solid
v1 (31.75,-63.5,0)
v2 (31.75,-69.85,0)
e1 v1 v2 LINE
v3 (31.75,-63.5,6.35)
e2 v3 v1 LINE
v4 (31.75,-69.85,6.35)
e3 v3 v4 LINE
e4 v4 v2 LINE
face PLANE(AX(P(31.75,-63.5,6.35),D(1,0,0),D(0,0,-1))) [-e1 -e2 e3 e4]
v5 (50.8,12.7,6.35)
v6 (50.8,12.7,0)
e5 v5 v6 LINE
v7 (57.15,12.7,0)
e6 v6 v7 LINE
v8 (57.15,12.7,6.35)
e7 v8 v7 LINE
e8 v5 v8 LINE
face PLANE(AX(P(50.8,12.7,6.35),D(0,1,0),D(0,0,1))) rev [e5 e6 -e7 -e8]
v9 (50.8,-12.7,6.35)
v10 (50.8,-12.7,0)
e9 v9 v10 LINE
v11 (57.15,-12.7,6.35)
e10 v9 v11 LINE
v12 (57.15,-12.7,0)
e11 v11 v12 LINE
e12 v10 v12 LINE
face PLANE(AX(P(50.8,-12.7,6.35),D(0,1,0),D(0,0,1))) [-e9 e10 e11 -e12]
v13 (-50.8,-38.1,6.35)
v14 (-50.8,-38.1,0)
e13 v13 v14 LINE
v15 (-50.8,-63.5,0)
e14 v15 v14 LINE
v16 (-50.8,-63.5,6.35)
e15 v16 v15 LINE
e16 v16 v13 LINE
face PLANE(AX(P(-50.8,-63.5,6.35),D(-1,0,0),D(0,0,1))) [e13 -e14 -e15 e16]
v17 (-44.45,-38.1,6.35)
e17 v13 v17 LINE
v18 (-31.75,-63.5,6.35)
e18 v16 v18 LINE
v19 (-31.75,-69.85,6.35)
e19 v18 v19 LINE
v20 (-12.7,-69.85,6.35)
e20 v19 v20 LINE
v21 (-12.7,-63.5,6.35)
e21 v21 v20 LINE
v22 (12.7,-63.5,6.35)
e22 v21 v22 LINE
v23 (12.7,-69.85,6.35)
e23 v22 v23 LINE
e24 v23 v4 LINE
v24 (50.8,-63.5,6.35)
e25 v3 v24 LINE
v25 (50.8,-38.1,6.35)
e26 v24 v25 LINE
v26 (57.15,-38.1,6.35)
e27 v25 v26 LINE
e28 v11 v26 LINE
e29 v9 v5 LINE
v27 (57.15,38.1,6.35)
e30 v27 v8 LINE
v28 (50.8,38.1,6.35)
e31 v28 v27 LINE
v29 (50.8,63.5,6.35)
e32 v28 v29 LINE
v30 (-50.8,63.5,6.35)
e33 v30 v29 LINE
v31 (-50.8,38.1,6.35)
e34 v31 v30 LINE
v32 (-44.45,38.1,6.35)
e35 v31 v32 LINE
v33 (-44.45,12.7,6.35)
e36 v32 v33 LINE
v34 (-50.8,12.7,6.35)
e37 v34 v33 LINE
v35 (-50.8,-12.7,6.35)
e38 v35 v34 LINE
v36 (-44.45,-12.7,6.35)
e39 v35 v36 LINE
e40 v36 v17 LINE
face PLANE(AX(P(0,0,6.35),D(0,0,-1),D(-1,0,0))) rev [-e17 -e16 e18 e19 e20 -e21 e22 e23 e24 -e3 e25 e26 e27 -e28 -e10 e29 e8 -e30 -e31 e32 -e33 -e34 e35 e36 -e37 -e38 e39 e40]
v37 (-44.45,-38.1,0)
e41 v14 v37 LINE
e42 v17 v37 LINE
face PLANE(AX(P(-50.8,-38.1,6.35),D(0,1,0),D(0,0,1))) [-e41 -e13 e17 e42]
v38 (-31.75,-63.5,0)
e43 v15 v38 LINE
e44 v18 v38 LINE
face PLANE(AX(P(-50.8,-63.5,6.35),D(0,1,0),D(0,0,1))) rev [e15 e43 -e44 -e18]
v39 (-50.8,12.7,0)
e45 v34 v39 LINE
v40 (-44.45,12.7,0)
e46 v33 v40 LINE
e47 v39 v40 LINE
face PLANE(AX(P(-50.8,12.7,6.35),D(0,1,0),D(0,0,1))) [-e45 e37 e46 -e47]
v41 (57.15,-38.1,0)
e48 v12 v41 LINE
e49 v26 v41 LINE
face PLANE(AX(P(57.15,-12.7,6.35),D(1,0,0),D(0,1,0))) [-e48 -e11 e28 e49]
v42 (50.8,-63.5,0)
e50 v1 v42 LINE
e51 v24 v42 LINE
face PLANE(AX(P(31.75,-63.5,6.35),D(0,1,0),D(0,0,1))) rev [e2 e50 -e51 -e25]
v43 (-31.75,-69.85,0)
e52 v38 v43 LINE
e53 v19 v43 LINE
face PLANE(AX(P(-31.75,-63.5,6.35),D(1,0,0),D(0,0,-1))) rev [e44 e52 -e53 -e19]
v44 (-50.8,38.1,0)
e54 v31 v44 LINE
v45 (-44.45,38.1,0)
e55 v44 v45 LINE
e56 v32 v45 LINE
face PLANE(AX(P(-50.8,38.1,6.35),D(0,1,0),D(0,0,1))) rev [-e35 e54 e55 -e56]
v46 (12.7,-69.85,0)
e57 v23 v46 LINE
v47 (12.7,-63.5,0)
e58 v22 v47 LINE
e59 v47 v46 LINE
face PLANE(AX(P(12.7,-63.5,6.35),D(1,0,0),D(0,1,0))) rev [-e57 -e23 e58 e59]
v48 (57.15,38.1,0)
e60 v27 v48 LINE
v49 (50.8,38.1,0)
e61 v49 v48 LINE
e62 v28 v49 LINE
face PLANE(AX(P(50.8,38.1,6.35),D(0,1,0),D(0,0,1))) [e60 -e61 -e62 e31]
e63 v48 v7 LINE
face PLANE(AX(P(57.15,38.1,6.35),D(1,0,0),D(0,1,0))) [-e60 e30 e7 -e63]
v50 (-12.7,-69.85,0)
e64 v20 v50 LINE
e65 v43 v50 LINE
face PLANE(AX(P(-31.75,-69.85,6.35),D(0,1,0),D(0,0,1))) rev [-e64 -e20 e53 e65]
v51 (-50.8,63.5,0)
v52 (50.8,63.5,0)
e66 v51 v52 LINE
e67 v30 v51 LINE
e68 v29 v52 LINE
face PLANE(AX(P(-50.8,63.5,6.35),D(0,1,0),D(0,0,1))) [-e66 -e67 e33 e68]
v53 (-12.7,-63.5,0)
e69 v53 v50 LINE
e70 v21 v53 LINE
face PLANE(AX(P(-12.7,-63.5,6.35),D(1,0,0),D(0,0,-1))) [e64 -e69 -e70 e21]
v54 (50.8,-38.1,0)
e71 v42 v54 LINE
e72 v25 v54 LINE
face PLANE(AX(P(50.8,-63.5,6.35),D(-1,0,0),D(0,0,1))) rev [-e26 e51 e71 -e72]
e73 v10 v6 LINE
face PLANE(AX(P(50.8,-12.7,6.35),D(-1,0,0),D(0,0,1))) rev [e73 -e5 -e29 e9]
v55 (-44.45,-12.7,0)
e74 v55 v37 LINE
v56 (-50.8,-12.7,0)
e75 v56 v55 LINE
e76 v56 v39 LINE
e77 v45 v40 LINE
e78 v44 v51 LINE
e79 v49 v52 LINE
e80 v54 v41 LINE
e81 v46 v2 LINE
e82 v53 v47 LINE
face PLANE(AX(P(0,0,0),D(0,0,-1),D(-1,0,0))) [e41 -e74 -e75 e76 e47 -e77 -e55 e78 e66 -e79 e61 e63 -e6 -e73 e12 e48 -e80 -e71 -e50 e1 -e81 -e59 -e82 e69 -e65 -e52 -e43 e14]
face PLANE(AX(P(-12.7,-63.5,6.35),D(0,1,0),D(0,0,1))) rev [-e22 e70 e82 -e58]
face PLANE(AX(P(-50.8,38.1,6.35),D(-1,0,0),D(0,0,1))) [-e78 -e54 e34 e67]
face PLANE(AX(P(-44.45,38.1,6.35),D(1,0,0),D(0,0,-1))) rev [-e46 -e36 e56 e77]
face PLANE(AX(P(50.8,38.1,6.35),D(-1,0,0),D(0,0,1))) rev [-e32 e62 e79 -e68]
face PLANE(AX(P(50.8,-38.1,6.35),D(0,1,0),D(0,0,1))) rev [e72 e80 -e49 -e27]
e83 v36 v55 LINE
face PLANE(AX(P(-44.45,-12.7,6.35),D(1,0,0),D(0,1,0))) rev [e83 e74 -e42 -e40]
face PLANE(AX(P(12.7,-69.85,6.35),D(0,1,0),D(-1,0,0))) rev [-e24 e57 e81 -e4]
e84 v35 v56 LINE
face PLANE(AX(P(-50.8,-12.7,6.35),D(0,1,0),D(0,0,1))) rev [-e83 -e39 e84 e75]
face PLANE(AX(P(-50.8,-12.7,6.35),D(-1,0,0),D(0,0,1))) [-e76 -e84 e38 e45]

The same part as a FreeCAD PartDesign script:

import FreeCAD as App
import Part
import Sketcher
from FreeCAD import Vector
Q = App.Units.Quantity

doc = App.newDocument("Part")
body = doc.addObject("PartDesign::Body", "Body")

sketch1 = body.newObject("Sketcher::SketchObject", "Sketch")
sketch1.AttachmentSupport = (doc.getObject("XY_Plane"), [""])
sketch1.MapMode = "FlatFace"
sketch1.addGeometry([
    Part.LineSegment(Vector(-51, 64, 0), Vector(-51, 38, 0)),
    Part.LineSegment(Vector(-51, 38, 0), Vector(-44, 38, 0)),
    Part.LineSegment(Vector(-44, 38, 0), Vector(-44, 13, 0)),
    Part.LineSegment(Vector(-44, 13, 0), Vector(-51, 13, 0)),
    Part.LineSegment(Vector(-51, 13, 0), Vector(-51, -13, 0)),
    Part.LineSegment(Vector(-51, -13, 0), Vector(-44, -13, 0)),
    Part.LineSegment(Vector(-44, -13, 0), Vector(-44, -38, 0)),
    Part.LineSegment(Vector(-44, -38, 0), Vector(-51, -38, 0)),
    Part.LineSegment(Vector(-51, -38, 0), Vector(-51, -64, 0)),
    Part.LineSegment(Vector(-51, -64, 0), Vector(-32, -64, 0)),
    Part.LineSegment(Vector(-32, -64, 0), Vector(-32, -70, 0)),
    Part.LineSegment(Vector(-32, -70, 0), Vector(-13, -70, 0)),
    Part.LineSegment(Vector(-13, -70, 0), Vector(-13, -64, 0)),
    Part.LineSegment(Vector(-13, -64, 0), Vector(13, -64, 0)),
    Part.LineSegment(Vector(13, -64, 0), Vector(13, -70, 0)),
    Part.LineSegment(Vector(13, -70, 0), Vector(32, -70, 0)),
    Part.LineSegment(Vector(32, -70, 0), Vector(32, -64, 0)),
    Part.LineSegment(Vector(32, -64, 0), Vector(51, -64, 0)),
    Part.LineSegment(Vector(51, -64, 0), Vector(51, -38, 0)),
    Part.LineSegment(Vector(51, -38, 0), Vector(57, -38, 0)),
    Part.LineSegment(Vector(57, -38, 0), Vector(57, -13, 0)),
    Part.LineSegment(Vector(57, -13, 0), Vector(51, -13, 0)),
    Part.LineSegment(Vector(51, -13, 0), Vector(51, 13, 0)),
    Part.LineSegment(Vector(51, 13, 0), Vector(57, 13, 0)),
    Part.LineSegment(Vector(57, 13, 0), Vector(57, 38, 0)),
    Part.LineSegment(Vector(57, 38, 0), Vector(51, 38, 0)),
    Part.LineSegment(Vector(51, 38, 0), Vector(51, 64, 0)),
    Part.LineSegment(Vector(51, 64, 0), Vector(-51, 64, 0)),
], False)
sketch1.addConstraint([
    Sketcher.Constraint("Coincident", 0, 2, 1, 1),
    Sketcher.Constraint("Coincident", 1, 2, 2, 1),
    Sketcher.Constraint("Coincident", 2, 2, 3, 1),
    Sketcher.Constraint("Coincident", 3, 2, 4, 1),
    Sketcher.Constraint("Coincident", 4, 2, 5, 1),
    Sketcher.Constraint("Coincident", 5, 2, 6, 1),
    Sketcher.Constraint("Coincident", 6, 2, 7, 1),
    Sketcher.Constraint("Coincident", 7, 2, 8, 1),
    Sketcher.Constraint("Coincident", 8, 2, 9, 1),
    Sketcher.Constraint("Coincident", 9, 2, 10, 1),
    Sketcher.Constraint("Coincident", 10, 2, 11, 1),
    Sketcher.Constraint("Coincident", 11, 2, 12, 1),
    Sketcher.Constraint("Coincident", 12, 2, 13, 1),
    Sketcher.Constraint("Coincident", 13, 2, 14, 1),
    Sketcher.Constraint("Coincident", 14, 2, 15, 1),
    Sketcher.Constraint("Coincident", 15, 2, 16, 1),
    Sketcher.Constraint("Coincident", 16, 2, 17, 1),
    Sketcher.Constraint("Coincident", 17, 2, 18, 1),
    Sketcher.Constraint("Coincident", 18, 2, 19, 1),
    Sketcher.Constraint("Coincident", 19, 2, 20, 1),
    Sketcher.Constraint("Coincident", 20, 2, 21, 1),
    Sketcher.Constraint("Coincident", 21, 2, 22, 1),
    Sketcher.Constraint("Coincident", 22, 2, 23, 1),
    Sketcher.Constraint("Coincident", 23, 2, 24, 1),
    Sketcher.Constraint("Coincident", 24, 2, 25, 1),
    Sketcher.Constraint("Coincident", 25, 2, 26, 1),
    Sketcher.Constraint("Coincident", 26, 2, 27, 1),
    Sketcher.Constraint("Coincident", 27, 2, 0, 1),
    Sketcher.Constraint("Vertical", 0),
    Sketcher.Constraint("Horizontal", 1),
    Sketcher.Constraint("Vertical", 2),
    Sketcher.Constraint("Horizontal", 3),
    Sketcher.Constraint("Vertical", 4),
    Sketcher.Constraint("Horizontal", 5),
    Sketcher.Constraint("Vertical", 6),
    Sketcher.Constraint("Horizontal", 7),
    Sketcher.Constraint("Vertical", 8),
    Sketcher.Constraint("Horizontal", 9),
    Sketcher.Constraint("Vertical", 10),
    Sketcher.Constraint("Horizontal", 11),
    Sketcher.Constraint("Vertical", 12),
    Sketcher.Constraint("Horizontal", 13),
    Sketcher.Constraint("Vertical", 14),
    Sketcher.Constraint("Horizontal", 15),
    Sketcher.Constraint("Vertical", 16),
    Sketcher.Constraint("Horizontal", 17),
    Sketcher.Constraint("Vertical", 18),
    Sketcher.Constraint("Horizontal", 19),
    Sketcher.Constraint("Vertical", 20),
    Sketcher.Constraint("Horizontal", 21),
    Sketcher.Constraint("Vertical", 22),
    Sketcher.Constraint("Horizontal", 23),
    Sketcher.Constraint("Vertical", 24),
    Sketcher.Constraint("Horizontal", 25),
    Sketcher.Constraint("Vertical", 26),
    Sketcher.Constraint("Horizontal", 27),
    Sketcher.Constraint("Symmetric", 0, 2, 18, 2, -1, 1),
    Sketcher.Constraint("Symmetric", 3, 2, 21, 2, -1, 1),
    Sketcher.Constraint("Symmetric", 7, 2, 25, 2, -1, 1),
    Sketcher.Constraint("Symmetric", 11, 2, 14, 2, -2),
    Sketcher.Constraint("Symmetric", 9, 2, 16, 2, -2),
    Sketcher.Constraint("Symmetric", 7, 2, 18, 2, -2),
    Sketcher.Constraint("Symmetric", 2, 2, 5, 2, -1),
    Sketcher.Constraint("Symmetric", 20, 2, 23, 2, -1),
    Sketcher.Constraint("Horizontal", 9, 2, 12, 2),
    Sketcher.Constraint("Vertical", 0, 2, 3, 2),
    Sketcher.Constraint("Equal", 9, 11),
    Sketcher.Constraint("Equal", 7, 19),
    Sketcher.Constraint("Equal", 13, 0),
    Sketcher.Constraint("Equal", 0, 2),
    Sketcher.Constraint("Equal", 2, 4),
    Sketcher.Constraint("Equal", 6, 8),
    Sketcher.Constraint("Equal", 25, 10),
    Sketcher.Constraint("DistanceX", 13, 1, 13, 2, Q("1 in")),
    Sketcher.Constraint("DistanceX", 27, 2, 27, 1, Q("4 in")),
    Sketcher.Constraint("DistanceX", 16, 2, 19, 2, Q("1 in")),
])
pad1 = body.newObject("PartDesign::Pad", "Pad")
pad1.Profile = sketch1
pad1.Length = Q("0.25 in")

doc.recompute()
